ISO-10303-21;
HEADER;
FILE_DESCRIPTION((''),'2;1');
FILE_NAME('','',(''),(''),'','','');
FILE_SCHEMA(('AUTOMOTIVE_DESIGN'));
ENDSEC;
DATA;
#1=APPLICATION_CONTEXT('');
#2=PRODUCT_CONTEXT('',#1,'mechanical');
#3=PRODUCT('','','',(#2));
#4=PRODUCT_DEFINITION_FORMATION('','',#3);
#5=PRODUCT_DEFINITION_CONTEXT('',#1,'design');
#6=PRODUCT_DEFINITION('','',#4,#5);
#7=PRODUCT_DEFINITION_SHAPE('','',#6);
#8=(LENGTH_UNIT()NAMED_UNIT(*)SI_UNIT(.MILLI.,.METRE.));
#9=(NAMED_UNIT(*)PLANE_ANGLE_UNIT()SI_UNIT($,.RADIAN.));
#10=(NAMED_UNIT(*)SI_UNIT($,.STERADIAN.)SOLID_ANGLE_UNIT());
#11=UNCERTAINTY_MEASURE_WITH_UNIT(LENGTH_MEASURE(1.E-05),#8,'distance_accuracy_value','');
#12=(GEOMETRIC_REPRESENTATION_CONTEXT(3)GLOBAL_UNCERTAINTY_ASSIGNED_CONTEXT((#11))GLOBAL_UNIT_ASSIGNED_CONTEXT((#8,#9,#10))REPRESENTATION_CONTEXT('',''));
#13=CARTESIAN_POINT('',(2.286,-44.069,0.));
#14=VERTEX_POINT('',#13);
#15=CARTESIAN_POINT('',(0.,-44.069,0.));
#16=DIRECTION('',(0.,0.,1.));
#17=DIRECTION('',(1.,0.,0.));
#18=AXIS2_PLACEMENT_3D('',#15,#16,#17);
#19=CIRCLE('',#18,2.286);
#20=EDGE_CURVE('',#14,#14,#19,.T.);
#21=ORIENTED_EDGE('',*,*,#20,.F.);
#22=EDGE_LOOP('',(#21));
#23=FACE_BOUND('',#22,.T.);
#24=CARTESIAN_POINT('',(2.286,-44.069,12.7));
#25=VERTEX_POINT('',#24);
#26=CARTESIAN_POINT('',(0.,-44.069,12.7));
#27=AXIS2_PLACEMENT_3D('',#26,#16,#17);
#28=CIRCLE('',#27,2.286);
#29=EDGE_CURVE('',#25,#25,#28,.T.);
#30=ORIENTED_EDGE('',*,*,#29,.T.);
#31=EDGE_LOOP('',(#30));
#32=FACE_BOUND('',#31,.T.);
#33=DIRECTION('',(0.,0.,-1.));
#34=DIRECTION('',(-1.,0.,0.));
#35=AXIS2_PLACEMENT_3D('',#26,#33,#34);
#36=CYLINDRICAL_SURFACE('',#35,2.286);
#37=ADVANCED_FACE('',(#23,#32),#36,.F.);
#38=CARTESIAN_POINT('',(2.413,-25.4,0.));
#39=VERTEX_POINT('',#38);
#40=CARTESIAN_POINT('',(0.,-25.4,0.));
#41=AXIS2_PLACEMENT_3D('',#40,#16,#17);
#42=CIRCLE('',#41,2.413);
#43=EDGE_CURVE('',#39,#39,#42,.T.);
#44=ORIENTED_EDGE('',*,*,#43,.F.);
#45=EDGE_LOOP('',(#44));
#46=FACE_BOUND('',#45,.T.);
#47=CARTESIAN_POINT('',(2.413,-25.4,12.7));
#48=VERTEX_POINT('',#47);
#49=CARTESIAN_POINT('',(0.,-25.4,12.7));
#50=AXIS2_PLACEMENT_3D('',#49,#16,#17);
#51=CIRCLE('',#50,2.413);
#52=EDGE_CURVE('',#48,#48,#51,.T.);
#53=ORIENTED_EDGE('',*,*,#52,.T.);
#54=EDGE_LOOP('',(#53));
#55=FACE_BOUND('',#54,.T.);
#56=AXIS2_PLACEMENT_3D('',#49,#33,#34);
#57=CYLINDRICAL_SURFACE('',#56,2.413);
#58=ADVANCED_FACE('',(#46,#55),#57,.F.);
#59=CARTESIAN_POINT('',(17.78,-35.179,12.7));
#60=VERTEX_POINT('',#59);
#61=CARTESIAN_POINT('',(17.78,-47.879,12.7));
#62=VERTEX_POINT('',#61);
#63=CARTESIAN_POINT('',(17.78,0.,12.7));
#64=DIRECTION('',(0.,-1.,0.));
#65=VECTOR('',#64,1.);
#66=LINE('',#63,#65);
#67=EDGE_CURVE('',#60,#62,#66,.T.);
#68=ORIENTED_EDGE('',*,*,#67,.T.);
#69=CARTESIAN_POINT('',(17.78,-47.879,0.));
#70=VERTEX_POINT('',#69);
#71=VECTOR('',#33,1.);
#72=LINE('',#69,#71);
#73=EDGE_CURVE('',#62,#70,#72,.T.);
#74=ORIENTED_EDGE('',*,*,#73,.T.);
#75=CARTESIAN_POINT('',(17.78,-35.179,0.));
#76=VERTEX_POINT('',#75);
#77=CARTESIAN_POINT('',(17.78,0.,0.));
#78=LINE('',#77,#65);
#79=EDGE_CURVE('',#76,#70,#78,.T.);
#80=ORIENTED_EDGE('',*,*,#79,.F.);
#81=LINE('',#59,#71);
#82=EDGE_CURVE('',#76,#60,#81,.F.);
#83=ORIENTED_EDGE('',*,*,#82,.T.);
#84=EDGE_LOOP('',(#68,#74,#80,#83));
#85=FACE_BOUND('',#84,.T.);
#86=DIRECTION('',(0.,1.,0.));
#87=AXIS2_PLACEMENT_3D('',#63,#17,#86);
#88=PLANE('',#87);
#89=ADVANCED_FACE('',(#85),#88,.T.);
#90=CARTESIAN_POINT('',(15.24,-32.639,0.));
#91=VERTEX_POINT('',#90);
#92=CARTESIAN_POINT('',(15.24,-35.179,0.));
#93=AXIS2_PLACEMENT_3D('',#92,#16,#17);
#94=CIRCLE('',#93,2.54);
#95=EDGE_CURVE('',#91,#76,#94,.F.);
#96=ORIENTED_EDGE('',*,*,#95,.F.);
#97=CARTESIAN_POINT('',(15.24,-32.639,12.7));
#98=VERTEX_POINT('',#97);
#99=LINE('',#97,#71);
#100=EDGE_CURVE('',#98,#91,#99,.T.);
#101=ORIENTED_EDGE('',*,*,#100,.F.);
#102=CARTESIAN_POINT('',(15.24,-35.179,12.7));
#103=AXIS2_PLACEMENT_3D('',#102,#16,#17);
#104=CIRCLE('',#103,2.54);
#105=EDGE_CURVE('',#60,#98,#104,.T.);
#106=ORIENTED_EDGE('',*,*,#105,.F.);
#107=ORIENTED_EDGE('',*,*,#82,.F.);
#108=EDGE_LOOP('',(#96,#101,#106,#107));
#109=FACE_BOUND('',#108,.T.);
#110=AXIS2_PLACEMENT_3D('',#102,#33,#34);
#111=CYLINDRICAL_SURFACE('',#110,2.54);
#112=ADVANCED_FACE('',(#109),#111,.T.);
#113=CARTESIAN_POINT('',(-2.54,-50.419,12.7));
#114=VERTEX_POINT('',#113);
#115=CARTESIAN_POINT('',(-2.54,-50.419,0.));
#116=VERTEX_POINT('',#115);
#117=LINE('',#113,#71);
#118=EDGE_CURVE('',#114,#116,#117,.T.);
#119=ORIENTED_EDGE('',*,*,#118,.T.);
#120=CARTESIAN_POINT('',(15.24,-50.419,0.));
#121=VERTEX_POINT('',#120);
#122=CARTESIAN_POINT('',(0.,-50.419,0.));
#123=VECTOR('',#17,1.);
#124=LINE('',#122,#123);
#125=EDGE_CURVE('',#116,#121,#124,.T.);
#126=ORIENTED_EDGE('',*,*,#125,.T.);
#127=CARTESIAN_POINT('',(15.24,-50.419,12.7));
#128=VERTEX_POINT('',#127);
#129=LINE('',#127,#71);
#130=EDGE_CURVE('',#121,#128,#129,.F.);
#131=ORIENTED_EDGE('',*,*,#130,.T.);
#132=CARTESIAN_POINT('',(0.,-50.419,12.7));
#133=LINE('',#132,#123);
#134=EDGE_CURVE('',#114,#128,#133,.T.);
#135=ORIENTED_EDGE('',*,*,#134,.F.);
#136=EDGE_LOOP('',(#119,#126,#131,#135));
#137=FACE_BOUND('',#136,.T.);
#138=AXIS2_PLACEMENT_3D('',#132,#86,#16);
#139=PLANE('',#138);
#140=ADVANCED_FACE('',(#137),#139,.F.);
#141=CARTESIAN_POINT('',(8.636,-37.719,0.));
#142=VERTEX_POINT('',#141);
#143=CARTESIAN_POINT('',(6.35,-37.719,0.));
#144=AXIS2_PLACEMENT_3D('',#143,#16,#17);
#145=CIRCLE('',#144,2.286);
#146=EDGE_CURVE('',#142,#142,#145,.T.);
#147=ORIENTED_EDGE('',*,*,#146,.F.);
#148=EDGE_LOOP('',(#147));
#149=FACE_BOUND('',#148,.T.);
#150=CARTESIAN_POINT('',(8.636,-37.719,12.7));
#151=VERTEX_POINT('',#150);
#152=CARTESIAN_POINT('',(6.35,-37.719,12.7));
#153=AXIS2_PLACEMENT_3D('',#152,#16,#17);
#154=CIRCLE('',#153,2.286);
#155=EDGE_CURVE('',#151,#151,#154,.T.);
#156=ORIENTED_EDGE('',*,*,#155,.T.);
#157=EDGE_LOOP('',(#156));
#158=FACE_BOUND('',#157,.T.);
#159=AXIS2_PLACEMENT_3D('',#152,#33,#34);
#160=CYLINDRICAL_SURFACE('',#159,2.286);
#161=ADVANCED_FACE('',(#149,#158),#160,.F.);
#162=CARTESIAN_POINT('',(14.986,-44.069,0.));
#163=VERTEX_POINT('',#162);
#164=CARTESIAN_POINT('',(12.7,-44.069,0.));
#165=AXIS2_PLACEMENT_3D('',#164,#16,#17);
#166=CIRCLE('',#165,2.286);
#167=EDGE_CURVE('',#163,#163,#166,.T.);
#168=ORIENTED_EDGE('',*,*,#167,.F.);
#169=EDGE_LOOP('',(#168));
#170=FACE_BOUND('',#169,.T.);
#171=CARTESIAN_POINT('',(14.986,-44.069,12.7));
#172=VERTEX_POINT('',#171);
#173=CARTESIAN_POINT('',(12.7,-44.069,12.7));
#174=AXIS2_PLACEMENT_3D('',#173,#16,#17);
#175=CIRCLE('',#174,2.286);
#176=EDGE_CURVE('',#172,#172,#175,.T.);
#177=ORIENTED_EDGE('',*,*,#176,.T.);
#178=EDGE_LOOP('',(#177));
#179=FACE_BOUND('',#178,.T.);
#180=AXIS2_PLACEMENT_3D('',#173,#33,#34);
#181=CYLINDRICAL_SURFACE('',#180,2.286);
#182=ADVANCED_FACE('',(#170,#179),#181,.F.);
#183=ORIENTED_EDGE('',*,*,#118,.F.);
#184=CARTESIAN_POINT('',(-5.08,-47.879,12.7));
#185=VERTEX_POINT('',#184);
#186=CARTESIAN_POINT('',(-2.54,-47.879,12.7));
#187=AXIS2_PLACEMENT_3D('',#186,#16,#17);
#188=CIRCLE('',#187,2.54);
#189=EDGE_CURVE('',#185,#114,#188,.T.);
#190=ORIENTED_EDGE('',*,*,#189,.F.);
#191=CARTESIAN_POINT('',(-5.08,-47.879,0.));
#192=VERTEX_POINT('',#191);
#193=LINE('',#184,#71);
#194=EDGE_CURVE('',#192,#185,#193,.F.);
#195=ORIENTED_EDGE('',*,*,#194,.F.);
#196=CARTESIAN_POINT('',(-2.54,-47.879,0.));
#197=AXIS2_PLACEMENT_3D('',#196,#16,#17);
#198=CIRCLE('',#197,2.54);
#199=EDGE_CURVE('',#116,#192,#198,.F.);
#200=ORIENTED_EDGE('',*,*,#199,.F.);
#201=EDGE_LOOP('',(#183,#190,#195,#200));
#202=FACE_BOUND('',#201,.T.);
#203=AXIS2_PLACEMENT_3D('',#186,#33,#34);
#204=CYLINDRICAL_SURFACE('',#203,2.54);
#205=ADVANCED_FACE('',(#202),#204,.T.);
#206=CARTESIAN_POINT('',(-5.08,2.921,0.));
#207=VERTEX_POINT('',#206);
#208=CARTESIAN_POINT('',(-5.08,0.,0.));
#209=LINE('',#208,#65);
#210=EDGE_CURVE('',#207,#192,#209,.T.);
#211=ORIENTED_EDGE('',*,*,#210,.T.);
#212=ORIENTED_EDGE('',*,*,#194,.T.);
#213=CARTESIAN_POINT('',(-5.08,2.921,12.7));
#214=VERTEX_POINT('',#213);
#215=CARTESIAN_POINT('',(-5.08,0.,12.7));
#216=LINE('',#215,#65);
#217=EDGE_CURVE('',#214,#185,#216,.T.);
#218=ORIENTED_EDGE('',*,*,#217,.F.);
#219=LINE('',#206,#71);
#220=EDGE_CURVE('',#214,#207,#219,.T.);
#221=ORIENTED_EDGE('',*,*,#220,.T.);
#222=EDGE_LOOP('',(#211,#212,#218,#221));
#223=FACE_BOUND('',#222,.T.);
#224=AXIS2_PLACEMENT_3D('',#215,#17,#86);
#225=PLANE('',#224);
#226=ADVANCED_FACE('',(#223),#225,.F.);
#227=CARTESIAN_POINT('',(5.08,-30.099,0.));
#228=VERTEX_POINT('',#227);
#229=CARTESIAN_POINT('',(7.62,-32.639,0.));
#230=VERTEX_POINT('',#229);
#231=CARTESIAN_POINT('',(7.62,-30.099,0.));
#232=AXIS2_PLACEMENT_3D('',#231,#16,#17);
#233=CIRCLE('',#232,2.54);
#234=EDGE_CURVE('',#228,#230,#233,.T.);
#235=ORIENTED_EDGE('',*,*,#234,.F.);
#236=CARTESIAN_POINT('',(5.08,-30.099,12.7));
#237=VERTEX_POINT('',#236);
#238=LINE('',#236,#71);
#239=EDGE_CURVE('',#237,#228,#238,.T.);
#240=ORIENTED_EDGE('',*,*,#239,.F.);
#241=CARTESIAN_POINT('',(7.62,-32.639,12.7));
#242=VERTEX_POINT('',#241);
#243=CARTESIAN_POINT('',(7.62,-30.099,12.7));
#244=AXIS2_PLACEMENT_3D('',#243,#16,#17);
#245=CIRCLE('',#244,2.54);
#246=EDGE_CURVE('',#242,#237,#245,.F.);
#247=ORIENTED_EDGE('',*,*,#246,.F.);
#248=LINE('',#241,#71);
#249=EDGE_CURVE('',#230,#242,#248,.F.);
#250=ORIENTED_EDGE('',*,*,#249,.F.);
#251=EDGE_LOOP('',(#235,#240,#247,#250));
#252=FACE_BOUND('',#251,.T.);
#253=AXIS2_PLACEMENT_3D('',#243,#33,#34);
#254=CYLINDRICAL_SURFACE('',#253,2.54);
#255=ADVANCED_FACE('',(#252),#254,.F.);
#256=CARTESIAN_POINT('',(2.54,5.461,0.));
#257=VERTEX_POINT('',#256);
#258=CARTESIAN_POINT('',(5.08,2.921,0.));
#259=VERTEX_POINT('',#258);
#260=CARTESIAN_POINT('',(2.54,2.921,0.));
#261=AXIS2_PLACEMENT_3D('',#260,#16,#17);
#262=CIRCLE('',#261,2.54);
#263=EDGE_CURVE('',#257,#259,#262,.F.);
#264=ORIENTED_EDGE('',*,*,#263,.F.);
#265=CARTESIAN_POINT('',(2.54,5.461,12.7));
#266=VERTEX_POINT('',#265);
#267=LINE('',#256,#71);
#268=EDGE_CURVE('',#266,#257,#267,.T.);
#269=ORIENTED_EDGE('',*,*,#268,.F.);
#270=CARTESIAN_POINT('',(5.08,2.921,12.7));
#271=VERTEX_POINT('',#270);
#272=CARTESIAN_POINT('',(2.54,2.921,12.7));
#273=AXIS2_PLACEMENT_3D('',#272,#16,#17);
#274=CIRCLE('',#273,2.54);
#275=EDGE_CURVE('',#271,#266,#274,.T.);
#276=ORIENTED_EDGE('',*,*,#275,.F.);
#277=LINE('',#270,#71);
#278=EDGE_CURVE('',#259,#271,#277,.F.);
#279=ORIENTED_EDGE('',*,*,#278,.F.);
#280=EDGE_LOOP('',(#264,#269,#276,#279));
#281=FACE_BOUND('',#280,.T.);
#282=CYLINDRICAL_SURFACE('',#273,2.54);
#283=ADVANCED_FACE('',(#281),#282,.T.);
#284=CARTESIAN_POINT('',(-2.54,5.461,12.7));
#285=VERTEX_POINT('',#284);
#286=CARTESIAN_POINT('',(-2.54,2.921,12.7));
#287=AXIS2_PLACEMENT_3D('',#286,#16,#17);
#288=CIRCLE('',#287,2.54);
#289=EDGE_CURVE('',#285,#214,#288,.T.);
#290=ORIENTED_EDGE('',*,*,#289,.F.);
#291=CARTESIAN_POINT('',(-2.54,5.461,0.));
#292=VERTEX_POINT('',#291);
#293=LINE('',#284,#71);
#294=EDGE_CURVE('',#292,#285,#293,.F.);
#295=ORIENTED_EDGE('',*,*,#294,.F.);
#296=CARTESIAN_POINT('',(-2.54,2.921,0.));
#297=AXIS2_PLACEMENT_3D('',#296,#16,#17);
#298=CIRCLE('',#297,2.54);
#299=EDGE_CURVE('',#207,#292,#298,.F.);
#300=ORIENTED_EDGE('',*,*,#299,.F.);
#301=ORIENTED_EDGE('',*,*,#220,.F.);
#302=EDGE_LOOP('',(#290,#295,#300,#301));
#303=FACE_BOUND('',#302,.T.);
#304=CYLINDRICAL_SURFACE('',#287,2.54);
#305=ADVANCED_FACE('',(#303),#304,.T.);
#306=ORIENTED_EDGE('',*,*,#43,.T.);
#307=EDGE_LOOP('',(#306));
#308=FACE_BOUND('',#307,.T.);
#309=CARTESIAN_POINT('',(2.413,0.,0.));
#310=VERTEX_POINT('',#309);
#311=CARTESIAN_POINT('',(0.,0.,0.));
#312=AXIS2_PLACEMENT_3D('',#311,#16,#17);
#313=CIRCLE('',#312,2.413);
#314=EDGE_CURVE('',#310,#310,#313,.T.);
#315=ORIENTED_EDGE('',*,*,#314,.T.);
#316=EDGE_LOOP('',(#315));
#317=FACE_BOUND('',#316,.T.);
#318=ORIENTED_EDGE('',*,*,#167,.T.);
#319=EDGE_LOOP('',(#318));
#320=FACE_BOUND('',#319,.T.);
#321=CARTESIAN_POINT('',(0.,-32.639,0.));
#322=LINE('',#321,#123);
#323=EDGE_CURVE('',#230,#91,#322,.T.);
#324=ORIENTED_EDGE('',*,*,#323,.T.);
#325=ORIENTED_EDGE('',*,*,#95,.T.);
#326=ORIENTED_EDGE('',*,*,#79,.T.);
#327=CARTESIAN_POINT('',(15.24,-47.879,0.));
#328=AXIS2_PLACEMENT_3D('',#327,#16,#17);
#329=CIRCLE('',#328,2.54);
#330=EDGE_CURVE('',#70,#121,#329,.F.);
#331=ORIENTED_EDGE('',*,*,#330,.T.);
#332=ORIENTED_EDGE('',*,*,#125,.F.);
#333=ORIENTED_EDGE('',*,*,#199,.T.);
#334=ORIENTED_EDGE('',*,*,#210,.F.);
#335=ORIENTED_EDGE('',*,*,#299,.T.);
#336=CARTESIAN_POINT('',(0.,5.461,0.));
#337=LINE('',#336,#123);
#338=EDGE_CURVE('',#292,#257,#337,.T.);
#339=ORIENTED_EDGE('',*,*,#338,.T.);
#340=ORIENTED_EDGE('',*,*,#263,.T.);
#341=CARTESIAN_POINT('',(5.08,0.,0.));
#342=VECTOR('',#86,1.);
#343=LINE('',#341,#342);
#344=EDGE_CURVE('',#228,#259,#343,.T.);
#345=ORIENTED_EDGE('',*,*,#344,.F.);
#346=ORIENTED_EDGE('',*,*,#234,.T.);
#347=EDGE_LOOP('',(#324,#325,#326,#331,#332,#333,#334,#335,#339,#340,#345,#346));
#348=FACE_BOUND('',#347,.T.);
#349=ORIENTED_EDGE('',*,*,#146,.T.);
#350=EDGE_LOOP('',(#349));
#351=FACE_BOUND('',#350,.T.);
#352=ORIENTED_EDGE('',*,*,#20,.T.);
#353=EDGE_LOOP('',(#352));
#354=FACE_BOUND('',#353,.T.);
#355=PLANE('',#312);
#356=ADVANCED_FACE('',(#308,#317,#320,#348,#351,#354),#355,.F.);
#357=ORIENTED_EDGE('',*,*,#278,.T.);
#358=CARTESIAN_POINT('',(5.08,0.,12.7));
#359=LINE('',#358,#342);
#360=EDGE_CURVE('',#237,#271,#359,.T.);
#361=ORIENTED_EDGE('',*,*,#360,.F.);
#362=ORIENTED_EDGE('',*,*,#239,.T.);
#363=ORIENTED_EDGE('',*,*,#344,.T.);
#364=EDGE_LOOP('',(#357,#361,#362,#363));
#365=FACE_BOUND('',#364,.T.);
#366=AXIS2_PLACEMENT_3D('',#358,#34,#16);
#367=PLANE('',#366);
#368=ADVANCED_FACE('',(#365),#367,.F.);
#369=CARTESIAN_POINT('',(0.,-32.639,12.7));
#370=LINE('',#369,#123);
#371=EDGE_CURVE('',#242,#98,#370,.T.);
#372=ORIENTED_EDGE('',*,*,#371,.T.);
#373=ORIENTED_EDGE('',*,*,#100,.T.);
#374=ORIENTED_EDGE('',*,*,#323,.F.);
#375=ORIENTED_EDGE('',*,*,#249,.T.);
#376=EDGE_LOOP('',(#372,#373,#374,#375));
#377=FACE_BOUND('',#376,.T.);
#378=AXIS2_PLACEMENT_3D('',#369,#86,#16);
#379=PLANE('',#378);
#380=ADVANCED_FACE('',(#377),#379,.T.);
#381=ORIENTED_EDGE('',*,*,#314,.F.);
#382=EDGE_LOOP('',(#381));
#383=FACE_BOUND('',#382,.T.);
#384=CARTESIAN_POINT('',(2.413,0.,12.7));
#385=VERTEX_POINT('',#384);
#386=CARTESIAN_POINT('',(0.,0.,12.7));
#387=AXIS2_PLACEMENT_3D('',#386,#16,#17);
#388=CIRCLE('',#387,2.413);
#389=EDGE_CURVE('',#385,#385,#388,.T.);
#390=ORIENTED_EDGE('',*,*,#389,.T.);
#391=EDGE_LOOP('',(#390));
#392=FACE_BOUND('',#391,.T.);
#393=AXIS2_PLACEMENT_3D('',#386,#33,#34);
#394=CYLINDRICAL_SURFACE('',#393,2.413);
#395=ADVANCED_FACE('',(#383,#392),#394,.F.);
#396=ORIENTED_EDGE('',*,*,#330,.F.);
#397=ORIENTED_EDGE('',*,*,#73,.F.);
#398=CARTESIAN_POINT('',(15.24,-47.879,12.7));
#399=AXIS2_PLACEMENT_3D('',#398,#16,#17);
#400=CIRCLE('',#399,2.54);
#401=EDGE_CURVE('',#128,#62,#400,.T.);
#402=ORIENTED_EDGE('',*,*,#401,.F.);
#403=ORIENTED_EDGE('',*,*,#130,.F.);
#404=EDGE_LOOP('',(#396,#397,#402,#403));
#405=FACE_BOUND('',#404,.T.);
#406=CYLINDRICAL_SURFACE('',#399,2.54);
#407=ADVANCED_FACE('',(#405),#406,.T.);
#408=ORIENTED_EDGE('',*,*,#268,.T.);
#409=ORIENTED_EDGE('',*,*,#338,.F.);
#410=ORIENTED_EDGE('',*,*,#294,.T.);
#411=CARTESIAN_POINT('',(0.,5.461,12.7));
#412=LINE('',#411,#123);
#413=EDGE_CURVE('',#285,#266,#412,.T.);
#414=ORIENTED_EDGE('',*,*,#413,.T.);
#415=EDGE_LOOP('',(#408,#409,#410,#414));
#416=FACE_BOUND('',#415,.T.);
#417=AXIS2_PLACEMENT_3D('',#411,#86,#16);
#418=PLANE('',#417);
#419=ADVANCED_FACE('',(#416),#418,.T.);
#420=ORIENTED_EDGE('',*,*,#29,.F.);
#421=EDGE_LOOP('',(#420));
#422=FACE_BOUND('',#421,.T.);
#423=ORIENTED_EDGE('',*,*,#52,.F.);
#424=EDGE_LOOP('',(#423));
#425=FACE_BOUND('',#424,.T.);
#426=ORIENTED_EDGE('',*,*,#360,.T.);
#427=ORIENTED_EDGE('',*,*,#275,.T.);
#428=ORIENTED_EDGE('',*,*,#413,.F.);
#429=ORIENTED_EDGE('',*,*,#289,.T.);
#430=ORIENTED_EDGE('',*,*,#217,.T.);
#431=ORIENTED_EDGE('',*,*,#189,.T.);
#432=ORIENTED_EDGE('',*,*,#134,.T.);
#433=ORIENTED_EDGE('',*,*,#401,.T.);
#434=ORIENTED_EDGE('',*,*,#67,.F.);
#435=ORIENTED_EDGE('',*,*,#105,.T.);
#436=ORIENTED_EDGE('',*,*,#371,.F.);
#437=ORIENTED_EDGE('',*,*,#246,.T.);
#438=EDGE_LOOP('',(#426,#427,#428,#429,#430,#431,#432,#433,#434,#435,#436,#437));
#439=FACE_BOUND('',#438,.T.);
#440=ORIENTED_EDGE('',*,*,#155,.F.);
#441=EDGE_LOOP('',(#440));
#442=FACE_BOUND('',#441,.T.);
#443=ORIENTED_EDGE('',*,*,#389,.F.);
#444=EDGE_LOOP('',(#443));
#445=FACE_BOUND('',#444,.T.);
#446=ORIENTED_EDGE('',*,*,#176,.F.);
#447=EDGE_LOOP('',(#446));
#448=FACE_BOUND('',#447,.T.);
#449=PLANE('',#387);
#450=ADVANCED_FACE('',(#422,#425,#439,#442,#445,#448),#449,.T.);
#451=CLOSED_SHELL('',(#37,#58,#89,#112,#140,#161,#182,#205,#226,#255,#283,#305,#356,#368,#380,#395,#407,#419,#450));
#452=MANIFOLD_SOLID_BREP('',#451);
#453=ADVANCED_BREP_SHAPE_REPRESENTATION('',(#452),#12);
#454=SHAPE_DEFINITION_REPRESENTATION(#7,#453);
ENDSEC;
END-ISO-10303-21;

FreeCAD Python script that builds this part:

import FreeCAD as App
import Part
import Sketcher
from FreeCAD import Vector
Q = App.Units.Quantity


def edges_at(feature, points):
    """Names of the edges that pass closest to the given points."""
    edges = feature.Shape.Edges
    near = lambda p: min(range(len(edges)), key=lambda i: edges[i].distToShape(Part.Vertex(*p))[0])
    return sorted({f"Edge{near(p) + 1}" for p in points})


def add_polygon(sketch, points):
    """Adds a closed chain of lines whose ends are joined by coincident constraints."""
    first, n = sketch.GeometryCount, len(points)
    for a, b in zip(points, points[1:] + points[:1]):
        sketch.addGeometry(Part.LineSegment(App.Vector(*a, 0), App.Vector(*b, 0)), False)
    for i in range(n):
        sketch.addConstraint(Sketcher.Constraint("Coincident", first + i, 2, first + (i + 1) % n, 1))

doc = App.newDocument("Part")
params = doc.addObject("Spreadsheet::Sheet", "Params")
for row, (alias, value) in enumerate([
    ("sketch1_diameter", "0.19 in"),
    ("sketch1_diameter2", "0.18 in"),
    ("sketch1_width", "0.9 in"),
    ("sketch1_width2", "0.5 in"),
    ("sketch1_height", "2.2 in"),
    ("pad1_length", "0.5 in"),
    ("fillet_radius", "0.1 in"),
], start=1):
    params.set(f"A{row}", alias)
    params.set(f"B{row}", "=" + value)
    params.setAlias(f"B{row}", alias)

body = doc.addObject("PartDesign::Body", "Body")

# Sketch on XY plane
sketch1 = doc.addObject("Sketcher::SketchObject", "Sketch")
body.addObject(sketch1)
sketch1.AttachmentSupport = (doc.XY_Plane, [""])
sketch1.MapMode = "FlatFace"
add_polygon(sketch1, [(-5.1, 5.5), (-5.1, -50.4), (17.8, -50.4), (17.8, -32.6), (5.1, -32.6), (5.1, 5.5)])  # lines 0-5
sketch1.addGeometry(Part.Circle(Vector(0, -25.4, 0), Vector(0, 0, 1), 2.4), False)  # 6
sketch1.addGeometry(Part.Circle(Vector(0, 0, 0), Vector(0, 0, 1), 2.4), False)  # 7
sketch1.addGeometry(Part.Circle(Vector(6.3, -37.7, 0), Vector(0, 0, 1), 2.3), False)  # 8
sketch1.addGeometry(Part.Circle(Vector(0, -44.1, 0), Vector(0, 0, 1), 2.3), False)  # 9
sketch1.addGeometry(Part.Circle(Vector(12.7, -44.1, 0), Vector(0, 0, 1), 2.3), False)  # 10
sketch1.addConstraint([
    Sketcher.Constraint("Vertical", 0),
    Sketcher.Constraint("Horizontal", 1),
    Sketcher.Constraint("Vertical", 2),
    Sketcher.Constraint("Horizontal", 3),
    Sketcher.Constraint("Vertical", 4),
    Sketcher.Constraint("Horizontal", 5),
    Sketcher.Constraint("Coincident", 7, 3, -1, 1),
    Sketcher.Constraint("Equal", 6, 7),
    Sketcher.Constraint("Equal", 8, 9),
    Sketcher.Constraint("Equal", 9, 10),
    Sketcher.Constraint("PointOnObject", 6, 3, -2),
    Sketcher.Constraint("PointOnObject", 9, 3, -2),
    Sketcher.Constraint("Horizontal", 9, 3, 10, 3),
    Sketcher.Constraint("Diameter", 6, Q("0.19 in")),
    Sketcher.Constraint("Diameter", 8, Q("0.18 in")),
    Sketcher.Constraint("DistanceX", 1, 1, 1, 2, Q("0.9 in")),
    Sketcher.Constraint("DistanceX", 3, 2, 3, 1, Q("0.5 in")),
    Sketcher.Constraint("DistanceY", 0, 2, 0, 1, Q("2.2 in")),
    Sketcher.Constraint("DistanceY", 2, 1, 2, 2, Q("0.7 in")),
    Sketcher.Constraint("DistanceY", 6, 3, -1, 1, Q("1 in")),
    Sketcher.Constraint("DistanceX", -1, 1, 10, 3, Q("0.5 in")),
    Sketcher.Constraint("DistanceX", 0, 2, -1, 1, Q("0.2 in")),
    Sketcher.Constraint("DistanceY", 0, 2, 8, 3, Q("0.5 in")),
    Sketcher.Constraint("DistanceX", -1, 1, 8, 3, Q("0.25 in")),
    Sketcher.Constraint("DistanceY", 9, 3, 8, 3, Q("0.25 in")),
    Sketcher.Constraint("DistanceY", 8, 3, -1, 1, Q("1.485 in")),
])
sketch1.setExpression("Constraints[19]", "Params.sketch1_diameter")
sketch1.setExpression("Constraints[20]", "Params.sketch1_diameter2")
sketch1.setExpression("Constraints[21]", "Params.sketch1_width")
sketch1.setExpression("Constraints[22]", "Params.sketch1_width2")
sketch1.setExpression("Constraints[23]", "Params.sketch1_height")
pad1 = doc.addObject("PartDesign::Pad", "Pad")
body.addObject(pad1)
pad1.Profile = sketch1
pad1.setExpression("Length", "Params.pad1_length")
doc.recompute()

fillet = doc.addObject("PartDesign::Fillet", "Fillet")
body.addObject(fillet)
fillet.Base = (pad1, edges_at(pad1, [
    (17.78, -50.419, 6.35),
    (-5.08, -50.419, 6.35),
    (-5.08, 5.461, 6.35),
    (5.08, 5.461, 6.35),
    (5.08, -32.639, 6.35),
    (17.78, -32.639, 6.35),
]))
fillet.setExpression("Radius", "Params.fillet_radius")

doc.recompute()
